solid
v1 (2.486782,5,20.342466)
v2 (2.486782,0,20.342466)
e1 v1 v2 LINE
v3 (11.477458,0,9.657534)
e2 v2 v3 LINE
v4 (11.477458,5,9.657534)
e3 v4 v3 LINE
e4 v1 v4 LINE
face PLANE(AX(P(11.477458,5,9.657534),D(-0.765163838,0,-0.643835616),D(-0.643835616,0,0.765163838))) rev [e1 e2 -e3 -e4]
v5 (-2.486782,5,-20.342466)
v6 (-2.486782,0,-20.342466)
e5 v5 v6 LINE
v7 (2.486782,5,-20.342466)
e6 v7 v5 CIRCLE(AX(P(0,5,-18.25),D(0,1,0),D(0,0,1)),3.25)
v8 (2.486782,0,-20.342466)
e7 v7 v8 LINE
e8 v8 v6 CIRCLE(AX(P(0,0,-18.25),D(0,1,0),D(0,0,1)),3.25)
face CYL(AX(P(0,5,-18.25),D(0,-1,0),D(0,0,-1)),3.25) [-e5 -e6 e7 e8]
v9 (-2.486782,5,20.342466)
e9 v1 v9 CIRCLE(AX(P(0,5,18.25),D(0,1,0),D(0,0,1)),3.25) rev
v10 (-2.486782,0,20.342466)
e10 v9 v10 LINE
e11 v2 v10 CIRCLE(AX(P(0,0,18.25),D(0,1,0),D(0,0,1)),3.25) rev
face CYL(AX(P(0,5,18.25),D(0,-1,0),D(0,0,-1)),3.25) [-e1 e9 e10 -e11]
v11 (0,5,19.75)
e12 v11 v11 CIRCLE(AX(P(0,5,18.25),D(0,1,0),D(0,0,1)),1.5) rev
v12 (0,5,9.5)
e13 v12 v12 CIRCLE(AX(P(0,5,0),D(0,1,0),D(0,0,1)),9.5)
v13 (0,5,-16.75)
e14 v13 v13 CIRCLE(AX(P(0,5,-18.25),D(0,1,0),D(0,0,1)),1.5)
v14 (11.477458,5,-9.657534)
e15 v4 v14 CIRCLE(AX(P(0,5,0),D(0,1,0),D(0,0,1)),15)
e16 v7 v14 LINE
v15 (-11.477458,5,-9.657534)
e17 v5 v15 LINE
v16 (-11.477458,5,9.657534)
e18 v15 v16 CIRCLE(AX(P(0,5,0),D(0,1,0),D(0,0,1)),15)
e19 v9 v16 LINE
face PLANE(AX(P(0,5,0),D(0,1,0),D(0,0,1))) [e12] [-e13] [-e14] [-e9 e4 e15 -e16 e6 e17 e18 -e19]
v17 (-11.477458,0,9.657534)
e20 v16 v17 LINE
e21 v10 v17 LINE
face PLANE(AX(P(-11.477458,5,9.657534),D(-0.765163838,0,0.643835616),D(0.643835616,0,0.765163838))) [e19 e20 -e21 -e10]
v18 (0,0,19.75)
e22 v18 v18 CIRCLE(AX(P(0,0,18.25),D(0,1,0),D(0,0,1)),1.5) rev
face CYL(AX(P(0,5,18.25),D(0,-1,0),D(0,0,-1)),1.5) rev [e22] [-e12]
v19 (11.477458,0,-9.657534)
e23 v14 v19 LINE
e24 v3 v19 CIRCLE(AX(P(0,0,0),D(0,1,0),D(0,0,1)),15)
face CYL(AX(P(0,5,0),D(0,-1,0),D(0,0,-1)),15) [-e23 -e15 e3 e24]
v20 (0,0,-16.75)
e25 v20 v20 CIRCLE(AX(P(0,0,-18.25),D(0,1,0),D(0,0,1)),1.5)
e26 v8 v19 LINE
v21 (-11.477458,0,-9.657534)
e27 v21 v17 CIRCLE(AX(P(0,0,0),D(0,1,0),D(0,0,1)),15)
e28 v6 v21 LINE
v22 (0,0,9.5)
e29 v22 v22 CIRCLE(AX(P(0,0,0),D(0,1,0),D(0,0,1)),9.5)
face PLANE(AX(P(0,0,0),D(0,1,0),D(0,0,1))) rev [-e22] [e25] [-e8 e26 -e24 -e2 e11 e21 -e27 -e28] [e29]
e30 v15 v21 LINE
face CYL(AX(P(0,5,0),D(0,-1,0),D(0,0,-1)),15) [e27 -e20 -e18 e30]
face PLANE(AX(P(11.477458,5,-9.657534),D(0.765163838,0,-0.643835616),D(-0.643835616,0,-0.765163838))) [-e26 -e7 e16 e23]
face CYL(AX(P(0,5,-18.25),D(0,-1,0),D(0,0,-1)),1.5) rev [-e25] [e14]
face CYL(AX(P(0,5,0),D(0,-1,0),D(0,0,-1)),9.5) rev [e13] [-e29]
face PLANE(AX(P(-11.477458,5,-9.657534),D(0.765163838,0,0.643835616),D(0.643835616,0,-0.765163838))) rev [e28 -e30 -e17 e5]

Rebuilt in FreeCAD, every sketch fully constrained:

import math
import FreeCAD as App
import Part
import Sketcher

V = App.Vector

doc = App.newDocument("Part")
body = doc.addObject("PartDesign::Body", "Body")

# Sketch on XZ plane
sketch1 = body.newObject("Sketcher::SketchObject", "Sketch")
sketch1.AttachmentSupport = (doc.getObject("XZ_Plane"), [""])
sketch1.MapMode = "FlatFace"
sketch1.addGeometry([
    Part.LineSegment(V(-11.477458, 9.657534, 0), V(-2.486782, 20.342466, 0)),  # 0
    Part.ArcOfCircle(Part.Circle(V(0, 18.25, 0), V(0, 0, 1), 3.25), math.radians(40.07843), math.radians(139.92157)),  # 1
    Part.LineSegment(V(2.486782, 20.342466, 0), V(11.477458, 9.657534, 0)),  # 2
    Part.ArcOfCircle(Part.Circle(V(0, 0, 0), V(0, 0, 1), 15), math.radians(-40.07843), math.radians(40.07843)),  # 3
    Part.LineSegment(V(11.477458, -9.657534, 0), V(2.486782, -20.342466, 0)),  # 4
    Part.ArcOfCircle(Part.Circle(V(0, -18.25, 0), V(0, 0, 1), 3.25), math.radians(-139.92157), math.radians(-40.07843)),  # 5
    Part.LineSegment(V(-2.486782, -20.342466, 0), V(-11.477458, -9.657534, 0)),  # 6
    Part.ArcOfCircle(Part.Circle(V(0, 0, 0), V(0, 0, 1), 15), math.radians(139.92157), math.radians(220.07843)),  # 7
    Part.Circle(V(0, 18.25, 0), V(0, 0, 1), 1.5),  # 8
    Part.Circle(V(0, 0, 0), V(0, 0, 1), 9.5),  # 9
    Part.Circle(V(0, -18.25, 0), V(0, 0, 1), 1.5),  # 10
], False)
sketch1.addConstraint([
    Sketcher.Constraint("Tangent", 0, 2, 1, 2),
    Sketcher.Constraint("Tangent", 1, 1, 2, 1),
    Sketcher.Constraint("Tangent", 2, 2, 3, 2),
    Sketcher.Constraint("Tangent", 3, 1, 4, 1),
    Sketcher.Constraint("Tangent", 4, 2, 5, 2),
    Sketcher.Constraint("Tangent", 5, 1, 6, 1),
    Sketcher.Constraint("Tangent", 6, 2, 7, 2),
    Sketcher.Constraint("Tangent", 7, 1, 0, 1),
    Sketcher.Constraint("Coincident", 3, 3, -1, 1),
    Sketcher.Constraint("Coincident", 7, 3, -1, 1),
    Sketcher.Constraint("Coincident", 9, 3, -1, 1),
    Sketcher.Constraint("Coincident", 8, 3, 1, 3),
    Sketcher.Constraint("Coincident", 10, 3, 5, 3),
    Sketcher.Constraint("Equal", 1, 5),
    Sketcher.Constraint("Equal", 3, 7),
    Sketcher.Constraint("Equal", 8, 10),
    Sketcher.Constraint("Symmetric", 1, 3, 5, 3, -1, 1),
    Sketcher.Constraint("PointOnObject", 1, 3, -2),
    Sketcher.Constraint("Diameter", 8, 3.0),
    Sketcher.Constraint("Diameter", 9, 19.0),
    Sketcher.Constraint("Radius", 3, 15.0),
    Sketcher.Constraint("Radius", 1, 3.25),
    Sketcher.Constraint("DistanceY", 5, 3, 1, 3, 36.5),
])
pad1 = body.newObject("PartDesign::Pad", "Pad")
pad1.Profile = sketch1
pad1.Length = 5
pad1.Reversed = True

doc.recompute()
